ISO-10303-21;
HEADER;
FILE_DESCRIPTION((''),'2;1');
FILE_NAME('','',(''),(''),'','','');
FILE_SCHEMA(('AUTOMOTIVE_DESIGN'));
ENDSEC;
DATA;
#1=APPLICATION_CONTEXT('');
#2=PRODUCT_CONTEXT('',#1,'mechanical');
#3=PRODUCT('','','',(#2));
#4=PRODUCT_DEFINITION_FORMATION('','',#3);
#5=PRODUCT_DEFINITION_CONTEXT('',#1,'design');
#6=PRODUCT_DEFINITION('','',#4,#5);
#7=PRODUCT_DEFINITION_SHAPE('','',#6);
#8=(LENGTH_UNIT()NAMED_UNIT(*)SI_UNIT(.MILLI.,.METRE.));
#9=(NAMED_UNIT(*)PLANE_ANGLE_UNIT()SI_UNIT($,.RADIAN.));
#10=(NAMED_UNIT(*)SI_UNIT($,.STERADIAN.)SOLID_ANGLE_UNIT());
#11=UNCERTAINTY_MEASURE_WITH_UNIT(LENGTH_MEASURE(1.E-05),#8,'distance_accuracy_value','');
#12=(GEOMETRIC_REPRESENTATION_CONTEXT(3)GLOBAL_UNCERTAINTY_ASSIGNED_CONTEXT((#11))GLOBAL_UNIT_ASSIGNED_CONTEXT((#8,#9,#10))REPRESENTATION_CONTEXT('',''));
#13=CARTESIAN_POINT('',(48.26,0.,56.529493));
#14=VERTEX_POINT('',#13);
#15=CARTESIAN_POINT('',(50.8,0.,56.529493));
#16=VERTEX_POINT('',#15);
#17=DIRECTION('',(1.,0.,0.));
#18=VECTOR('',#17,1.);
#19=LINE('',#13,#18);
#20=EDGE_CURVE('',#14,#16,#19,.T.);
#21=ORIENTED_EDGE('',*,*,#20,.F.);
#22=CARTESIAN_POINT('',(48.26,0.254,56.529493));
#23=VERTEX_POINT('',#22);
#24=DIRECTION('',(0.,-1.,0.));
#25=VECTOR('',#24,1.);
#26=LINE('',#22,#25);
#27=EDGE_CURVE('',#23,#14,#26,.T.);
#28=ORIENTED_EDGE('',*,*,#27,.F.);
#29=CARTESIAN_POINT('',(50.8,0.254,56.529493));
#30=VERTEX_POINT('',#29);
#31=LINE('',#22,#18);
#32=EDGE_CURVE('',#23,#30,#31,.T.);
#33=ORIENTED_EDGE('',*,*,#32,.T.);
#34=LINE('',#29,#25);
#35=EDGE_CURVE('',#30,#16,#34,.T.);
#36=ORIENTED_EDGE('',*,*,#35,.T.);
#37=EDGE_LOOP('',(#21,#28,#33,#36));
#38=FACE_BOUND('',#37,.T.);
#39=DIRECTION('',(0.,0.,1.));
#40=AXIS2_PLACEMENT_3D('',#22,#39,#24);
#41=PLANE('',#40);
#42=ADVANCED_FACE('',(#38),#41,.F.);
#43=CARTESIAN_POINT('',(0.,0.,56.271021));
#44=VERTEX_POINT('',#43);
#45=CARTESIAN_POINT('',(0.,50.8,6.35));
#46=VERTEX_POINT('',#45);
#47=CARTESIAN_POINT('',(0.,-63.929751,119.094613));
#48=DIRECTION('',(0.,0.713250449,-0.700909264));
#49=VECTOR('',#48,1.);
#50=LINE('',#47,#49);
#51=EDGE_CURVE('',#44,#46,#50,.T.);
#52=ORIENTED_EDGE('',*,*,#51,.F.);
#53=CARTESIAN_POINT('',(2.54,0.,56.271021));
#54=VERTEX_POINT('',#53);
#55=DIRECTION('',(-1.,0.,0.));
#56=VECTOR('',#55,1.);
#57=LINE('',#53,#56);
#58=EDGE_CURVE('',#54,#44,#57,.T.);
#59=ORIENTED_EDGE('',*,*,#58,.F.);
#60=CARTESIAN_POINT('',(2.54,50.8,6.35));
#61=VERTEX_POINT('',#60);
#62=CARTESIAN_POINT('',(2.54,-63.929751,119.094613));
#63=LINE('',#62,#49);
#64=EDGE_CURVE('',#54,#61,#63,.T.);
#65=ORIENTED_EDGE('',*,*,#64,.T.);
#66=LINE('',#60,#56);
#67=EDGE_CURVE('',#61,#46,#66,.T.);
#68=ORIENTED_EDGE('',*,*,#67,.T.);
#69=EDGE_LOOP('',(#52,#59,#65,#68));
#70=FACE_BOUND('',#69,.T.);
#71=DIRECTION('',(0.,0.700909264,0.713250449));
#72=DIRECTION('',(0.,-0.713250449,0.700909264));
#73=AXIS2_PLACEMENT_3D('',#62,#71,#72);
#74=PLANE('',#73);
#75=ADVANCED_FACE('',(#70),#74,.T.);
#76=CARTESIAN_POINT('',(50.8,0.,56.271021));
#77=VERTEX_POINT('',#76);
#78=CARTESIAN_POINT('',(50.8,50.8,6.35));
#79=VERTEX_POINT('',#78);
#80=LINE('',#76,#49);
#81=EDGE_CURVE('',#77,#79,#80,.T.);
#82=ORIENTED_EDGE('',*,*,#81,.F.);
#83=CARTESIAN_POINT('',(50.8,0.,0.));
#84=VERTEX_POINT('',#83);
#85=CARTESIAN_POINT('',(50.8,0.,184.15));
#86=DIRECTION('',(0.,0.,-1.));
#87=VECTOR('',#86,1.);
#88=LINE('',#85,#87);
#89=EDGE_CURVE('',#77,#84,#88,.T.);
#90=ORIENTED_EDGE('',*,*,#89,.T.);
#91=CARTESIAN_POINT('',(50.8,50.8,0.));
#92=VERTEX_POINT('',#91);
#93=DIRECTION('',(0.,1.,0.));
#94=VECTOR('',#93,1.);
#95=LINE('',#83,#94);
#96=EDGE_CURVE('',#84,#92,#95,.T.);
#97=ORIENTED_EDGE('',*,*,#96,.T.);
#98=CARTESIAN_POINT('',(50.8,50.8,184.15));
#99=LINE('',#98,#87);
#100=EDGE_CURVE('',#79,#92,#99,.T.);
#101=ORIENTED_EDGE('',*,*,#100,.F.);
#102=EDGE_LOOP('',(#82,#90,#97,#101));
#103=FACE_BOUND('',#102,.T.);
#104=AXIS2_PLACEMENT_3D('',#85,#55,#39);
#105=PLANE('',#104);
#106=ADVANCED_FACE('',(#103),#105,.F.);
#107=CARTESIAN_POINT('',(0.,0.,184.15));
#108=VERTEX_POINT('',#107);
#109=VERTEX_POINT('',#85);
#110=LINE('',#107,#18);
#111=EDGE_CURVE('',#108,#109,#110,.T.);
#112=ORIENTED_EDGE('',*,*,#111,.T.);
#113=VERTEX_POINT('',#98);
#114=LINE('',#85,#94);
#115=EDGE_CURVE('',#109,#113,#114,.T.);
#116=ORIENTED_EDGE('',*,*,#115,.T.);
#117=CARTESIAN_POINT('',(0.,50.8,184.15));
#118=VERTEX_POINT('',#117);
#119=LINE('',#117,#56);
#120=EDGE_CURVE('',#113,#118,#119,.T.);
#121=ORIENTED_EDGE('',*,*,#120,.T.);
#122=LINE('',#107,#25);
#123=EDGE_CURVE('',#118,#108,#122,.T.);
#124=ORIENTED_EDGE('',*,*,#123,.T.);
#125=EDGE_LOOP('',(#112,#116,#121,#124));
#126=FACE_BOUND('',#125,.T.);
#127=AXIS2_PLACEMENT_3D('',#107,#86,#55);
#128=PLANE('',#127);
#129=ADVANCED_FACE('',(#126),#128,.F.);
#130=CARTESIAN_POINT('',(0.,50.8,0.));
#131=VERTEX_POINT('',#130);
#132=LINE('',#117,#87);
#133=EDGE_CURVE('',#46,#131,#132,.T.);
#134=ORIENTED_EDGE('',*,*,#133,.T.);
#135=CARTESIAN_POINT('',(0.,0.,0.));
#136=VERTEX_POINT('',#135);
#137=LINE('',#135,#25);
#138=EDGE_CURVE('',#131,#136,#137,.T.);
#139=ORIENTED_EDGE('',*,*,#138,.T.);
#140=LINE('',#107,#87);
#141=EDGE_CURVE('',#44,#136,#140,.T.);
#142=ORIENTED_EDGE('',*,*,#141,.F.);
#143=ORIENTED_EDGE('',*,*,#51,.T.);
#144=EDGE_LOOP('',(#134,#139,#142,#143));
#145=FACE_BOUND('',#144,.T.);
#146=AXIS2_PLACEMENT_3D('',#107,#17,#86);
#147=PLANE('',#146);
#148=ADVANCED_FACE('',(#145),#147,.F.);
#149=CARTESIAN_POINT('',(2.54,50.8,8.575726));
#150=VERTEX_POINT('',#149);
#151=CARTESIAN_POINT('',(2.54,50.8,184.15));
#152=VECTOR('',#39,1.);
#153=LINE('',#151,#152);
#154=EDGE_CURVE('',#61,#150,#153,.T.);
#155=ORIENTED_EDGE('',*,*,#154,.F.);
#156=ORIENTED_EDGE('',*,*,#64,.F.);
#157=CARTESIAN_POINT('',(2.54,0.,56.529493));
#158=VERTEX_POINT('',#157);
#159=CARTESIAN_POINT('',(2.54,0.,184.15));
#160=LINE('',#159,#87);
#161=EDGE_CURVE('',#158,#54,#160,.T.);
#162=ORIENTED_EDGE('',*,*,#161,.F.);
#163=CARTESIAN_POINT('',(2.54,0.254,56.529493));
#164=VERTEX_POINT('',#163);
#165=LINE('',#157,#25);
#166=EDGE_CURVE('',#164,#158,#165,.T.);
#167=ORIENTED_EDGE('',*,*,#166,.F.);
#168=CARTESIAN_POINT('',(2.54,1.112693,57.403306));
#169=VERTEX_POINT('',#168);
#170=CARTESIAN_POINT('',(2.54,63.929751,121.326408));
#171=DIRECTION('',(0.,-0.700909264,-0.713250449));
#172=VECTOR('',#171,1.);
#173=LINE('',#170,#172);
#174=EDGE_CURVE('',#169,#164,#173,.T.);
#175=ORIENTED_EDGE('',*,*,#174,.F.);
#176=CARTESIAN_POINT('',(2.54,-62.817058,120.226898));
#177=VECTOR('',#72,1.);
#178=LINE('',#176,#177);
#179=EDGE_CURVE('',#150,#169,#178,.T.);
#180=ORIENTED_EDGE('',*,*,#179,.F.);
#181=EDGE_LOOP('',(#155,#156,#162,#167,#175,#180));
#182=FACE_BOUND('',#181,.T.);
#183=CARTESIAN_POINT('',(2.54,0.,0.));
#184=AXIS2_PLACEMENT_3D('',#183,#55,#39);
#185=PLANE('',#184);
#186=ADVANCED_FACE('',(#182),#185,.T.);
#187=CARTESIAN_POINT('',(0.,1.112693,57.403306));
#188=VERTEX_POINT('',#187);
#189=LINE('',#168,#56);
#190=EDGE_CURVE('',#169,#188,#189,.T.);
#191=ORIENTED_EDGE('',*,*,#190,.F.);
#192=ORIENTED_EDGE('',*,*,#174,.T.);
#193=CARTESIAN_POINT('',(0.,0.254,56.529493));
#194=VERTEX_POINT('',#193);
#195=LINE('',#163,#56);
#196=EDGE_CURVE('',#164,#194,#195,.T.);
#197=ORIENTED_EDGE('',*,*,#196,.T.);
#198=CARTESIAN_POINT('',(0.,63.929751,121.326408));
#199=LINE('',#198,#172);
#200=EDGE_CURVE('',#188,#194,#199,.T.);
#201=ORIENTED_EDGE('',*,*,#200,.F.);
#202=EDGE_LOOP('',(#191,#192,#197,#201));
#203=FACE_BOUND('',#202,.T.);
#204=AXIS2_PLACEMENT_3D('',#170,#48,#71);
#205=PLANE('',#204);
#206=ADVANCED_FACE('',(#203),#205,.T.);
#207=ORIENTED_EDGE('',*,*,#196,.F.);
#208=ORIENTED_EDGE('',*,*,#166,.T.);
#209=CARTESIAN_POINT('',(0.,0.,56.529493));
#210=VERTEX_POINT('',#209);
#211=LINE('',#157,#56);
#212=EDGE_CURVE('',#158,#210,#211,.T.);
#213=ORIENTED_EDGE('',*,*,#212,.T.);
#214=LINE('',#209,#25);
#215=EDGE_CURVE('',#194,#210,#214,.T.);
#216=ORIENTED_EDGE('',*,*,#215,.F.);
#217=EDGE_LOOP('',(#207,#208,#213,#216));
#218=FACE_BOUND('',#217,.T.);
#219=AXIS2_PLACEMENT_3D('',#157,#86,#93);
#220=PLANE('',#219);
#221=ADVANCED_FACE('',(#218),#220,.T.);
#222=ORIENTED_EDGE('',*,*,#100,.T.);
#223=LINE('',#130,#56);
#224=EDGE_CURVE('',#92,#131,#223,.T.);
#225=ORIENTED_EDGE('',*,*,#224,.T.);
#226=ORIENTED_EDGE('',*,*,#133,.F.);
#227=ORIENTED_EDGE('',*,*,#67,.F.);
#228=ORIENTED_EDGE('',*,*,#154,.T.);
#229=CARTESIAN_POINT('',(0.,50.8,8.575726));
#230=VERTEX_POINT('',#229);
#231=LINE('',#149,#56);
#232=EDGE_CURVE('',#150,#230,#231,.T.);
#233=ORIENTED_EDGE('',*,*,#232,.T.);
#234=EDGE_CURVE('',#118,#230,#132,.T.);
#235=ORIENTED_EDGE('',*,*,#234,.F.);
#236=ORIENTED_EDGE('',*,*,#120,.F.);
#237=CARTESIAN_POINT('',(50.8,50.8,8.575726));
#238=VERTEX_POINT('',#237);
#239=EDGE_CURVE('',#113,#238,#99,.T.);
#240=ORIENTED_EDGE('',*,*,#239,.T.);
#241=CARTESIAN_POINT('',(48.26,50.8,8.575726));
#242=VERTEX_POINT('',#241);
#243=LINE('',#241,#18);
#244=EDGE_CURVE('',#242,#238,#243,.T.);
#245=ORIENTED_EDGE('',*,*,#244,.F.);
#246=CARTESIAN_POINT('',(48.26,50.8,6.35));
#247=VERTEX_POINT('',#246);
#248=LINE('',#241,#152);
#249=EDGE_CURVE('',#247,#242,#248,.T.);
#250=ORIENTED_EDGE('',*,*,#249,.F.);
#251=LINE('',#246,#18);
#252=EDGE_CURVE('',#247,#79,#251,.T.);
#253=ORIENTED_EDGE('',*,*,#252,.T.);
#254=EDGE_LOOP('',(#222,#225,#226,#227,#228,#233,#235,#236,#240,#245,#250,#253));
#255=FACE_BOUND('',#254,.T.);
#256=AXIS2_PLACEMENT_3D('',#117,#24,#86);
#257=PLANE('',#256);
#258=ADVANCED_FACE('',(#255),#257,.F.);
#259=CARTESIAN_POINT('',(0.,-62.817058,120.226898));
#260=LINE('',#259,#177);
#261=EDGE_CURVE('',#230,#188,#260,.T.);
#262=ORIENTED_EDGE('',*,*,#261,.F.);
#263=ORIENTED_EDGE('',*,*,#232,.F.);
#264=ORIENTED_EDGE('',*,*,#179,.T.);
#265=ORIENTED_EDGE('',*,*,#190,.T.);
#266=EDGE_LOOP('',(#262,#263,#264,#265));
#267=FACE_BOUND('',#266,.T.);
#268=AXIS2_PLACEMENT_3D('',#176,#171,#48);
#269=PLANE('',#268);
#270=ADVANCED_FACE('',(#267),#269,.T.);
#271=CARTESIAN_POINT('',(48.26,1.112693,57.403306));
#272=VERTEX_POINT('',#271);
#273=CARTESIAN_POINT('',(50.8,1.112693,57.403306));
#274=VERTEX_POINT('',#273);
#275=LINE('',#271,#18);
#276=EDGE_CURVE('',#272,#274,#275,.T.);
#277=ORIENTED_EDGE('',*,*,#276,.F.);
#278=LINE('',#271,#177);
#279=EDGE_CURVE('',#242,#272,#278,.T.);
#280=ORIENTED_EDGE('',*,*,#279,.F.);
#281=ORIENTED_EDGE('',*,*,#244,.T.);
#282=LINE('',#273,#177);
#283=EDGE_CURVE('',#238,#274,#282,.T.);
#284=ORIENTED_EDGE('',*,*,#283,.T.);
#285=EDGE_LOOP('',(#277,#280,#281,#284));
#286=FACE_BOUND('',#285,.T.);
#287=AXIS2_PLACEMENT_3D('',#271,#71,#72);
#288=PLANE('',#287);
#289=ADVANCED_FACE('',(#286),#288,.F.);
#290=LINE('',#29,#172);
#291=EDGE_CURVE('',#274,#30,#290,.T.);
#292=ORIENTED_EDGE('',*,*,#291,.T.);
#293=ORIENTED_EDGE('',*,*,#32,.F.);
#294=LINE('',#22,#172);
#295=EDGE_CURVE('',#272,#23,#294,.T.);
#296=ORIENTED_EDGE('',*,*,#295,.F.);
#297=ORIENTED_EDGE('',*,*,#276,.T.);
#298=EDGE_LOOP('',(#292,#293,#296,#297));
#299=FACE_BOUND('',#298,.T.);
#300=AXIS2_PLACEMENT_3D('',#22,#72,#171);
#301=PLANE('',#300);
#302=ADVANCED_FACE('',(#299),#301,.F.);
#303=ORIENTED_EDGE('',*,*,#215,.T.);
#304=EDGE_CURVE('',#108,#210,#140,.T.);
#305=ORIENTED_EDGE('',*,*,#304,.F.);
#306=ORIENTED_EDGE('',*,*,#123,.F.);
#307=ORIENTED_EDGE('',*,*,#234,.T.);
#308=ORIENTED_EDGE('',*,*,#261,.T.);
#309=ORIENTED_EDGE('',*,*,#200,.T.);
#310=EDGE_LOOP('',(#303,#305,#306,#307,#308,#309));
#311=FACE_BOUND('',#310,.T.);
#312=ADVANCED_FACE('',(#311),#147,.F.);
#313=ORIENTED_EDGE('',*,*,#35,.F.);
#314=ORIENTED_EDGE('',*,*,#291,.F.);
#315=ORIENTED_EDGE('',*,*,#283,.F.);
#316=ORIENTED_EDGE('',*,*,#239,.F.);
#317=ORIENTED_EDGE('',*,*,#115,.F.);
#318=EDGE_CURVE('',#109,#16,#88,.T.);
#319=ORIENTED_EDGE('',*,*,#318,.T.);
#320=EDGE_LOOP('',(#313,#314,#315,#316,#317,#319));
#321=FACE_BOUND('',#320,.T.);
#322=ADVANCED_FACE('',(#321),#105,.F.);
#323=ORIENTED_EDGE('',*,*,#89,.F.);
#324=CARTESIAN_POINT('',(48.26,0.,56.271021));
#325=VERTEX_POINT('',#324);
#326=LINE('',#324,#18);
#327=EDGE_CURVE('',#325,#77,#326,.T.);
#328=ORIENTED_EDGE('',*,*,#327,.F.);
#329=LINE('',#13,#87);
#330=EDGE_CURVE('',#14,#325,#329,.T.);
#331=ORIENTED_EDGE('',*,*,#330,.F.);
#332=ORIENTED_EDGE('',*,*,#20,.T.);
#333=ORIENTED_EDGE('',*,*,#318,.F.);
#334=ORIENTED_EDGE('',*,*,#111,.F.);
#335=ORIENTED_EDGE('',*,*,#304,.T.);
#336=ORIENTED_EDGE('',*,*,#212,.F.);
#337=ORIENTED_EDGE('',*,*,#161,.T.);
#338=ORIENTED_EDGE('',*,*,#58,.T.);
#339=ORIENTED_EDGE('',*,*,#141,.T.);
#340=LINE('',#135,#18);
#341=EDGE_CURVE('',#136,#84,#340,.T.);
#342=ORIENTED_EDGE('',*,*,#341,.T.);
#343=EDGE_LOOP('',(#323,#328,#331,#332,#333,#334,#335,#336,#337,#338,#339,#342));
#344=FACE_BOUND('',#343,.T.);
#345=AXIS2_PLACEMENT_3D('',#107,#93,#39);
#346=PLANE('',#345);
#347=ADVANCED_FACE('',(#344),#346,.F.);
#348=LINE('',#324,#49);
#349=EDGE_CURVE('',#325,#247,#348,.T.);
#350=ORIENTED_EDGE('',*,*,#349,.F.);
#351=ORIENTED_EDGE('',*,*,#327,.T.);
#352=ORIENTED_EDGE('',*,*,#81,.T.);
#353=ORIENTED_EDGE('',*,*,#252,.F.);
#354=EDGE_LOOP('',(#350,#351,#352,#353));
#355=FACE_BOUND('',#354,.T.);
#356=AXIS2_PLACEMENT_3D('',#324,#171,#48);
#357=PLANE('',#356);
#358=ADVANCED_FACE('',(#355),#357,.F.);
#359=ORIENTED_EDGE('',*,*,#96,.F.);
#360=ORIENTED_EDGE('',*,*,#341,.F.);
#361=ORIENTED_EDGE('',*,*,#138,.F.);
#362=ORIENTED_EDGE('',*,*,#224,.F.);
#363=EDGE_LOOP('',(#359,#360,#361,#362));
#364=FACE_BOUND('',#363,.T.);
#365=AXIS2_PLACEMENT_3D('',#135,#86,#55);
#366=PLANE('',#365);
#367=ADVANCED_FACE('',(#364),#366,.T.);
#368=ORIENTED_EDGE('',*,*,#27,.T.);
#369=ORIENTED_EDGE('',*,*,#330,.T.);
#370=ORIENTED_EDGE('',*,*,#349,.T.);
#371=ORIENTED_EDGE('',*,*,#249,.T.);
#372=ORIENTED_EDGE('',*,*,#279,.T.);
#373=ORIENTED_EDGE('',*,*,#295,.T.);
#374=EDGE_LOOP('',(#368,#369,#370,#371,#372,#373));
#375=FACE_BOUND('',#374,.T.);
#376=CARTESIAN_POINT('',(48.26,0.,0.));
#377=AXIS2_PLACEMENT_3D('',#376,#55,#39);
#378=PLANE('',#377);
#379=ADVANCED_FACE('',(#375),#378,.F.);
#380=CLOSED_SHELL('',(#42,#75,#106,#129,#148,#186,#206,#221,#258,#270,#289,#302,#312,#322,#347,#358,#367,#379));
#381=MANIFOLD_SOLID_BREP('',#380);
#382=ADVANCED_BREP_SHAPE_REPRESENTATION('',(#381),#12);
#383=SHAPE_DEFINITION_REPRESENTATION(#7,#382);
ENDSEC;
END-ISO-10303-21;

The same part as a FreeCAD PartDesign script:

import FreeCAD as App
import Part
import Sketcher
from FreeCAD import Vector
Q = App.Units.Quantity

doc = App.newDocument("Part")
body = doc.addObject("PartDesign::Body", "Body")

# Sketch on XY plane
sketch1 = body.newObject("Sketcher::SketchObject", "Sketch")
sketch1.AttachmentSupport = (doc.getObject("XY_Plane"), [""])
sketch1.MapMode = "FlatFace"
sketch1.addGeometry([
    Part.LineSegment(Vector(0, 51, 0), Vector(0, 0, 0)),
    Part.LineSegment(Vector(0, 0, 0), Vector(51, 0, 0)),
    Part.LineSegment(Vector(51, 0, 0), Vector(51, 51, 0)),
    Part.LineSegment(Vector(51, 51, 0), Vector(0, 51, 0)),
], False)
sketch1.addConstraint([
    Sketcher.Constraint("Coincident", 0, 2, 1, 1),
    Sketcher.Constraint("Coincident", 1, 2, 2, 1),
    Sketcher.Constraint("Coincident", 2, 2, 3, 1),
    Sketcher.Constraint("Coincident", 3, 2, 0, 1),
    Sketcher.Constraint("Vertical", 0),
    Sketcher.Constraint("Horizontal", 1),
    Sketcher.Constraint("Vertical", 2),
    Sketcher.Constraint("Horizontal", 3),
    Sketcher.Constraint("Coincident", 0, 2, -1, 1),
    Sketcher.Constraint("Equal", 3, 0),
    Sketcher.Constraint("DistanceX", 1, 1, 1, 2, Q("2 in")),
])
pad1 = body.newObject("PartDesign::Pad", "Pad")
pad1.Profile = sketch1
pad1.Length = Q("7.25 in")

# Sketch on YZ plane
sketch2 = body.newObject("Sketcher::SketchObject", "Sketch001")
sketch2.AttachmentSupport = (doc.getObject("YZ_Plane"), [""])
sketch2.MapMode = "FlatFace"
sketch2.AttachmentOffset = App.Placement(Vector(0, 0, 2 * 25.4), App.Rotation())
sketch2.addGeometry([
    Part.LineSegment(Vector(0, 56.27, 0), Vector(50.8, 6.35, 0)),  # 0
    Part.LineSegment(Vector(50.8, 6.35, 0), Vector(50.8, 8.58, 0)),  # 1
    Part.LineSegment(Vector(50.8, 8.58, 0), Vector(1.11, 57.4, 0)),  # 2
    Part.LineSegment(Vector(1.11, 57.4, 0), Vector(0.25, 56.53, 0)),  # 3
    Part.LineSegment(Vector(0.25, 56.53, 0), Vector(0, 56.53, 0)),  # 4
    Part.LineSegment(Vector(0, 56.53, 0), Vector(0, 56.27, 0)),  # 5
], False)
sketch2.addConstraint([
    Sketcher.Constraint("Coincident", 0, 2, 1, 1),
    Sketcher.Constraint("Coincident", 1, 2, 2, 1),
    Sketcher.Constraint("Coincident", 2, 2, 3, 1),
    Sketcher.Constraint("Coincident", 3, 2, 4, 1),
    Sketcher.Constraint("Coincident", 4, 2, 5, 1),
    Sketcher.Constraint("Coincident", 5, 2, 0, 1),
    Sketcher.Constraint("Vertical", 1),
    Sketcher.Constraint("Horizontal", 4),
    Sketcher.Constraint("Vertical", 5),
    Sketcher.Constraint("PointOnObject", 4, 2, -2),
    Sketcher.Constraint("Parallel", 0, 2),
    Sketcher.Constraint("Perpendicular", 2, 3),
    Sketcher.Constraint("DistanceX", -1, 1, 0, 2, Q("2 in")),
    Sketcher.Constraint("DistanceX", 4, 2, 4, 1, Q("0.01 in")),
    Sketcher.Constraint("Angle", 0, Q("-44.5 deg")),
    Sketcher.Constraint("DistanceY", -1, 1, 0, 2, Q("0.25 in")),
    Sketcher.Constraint("DistanceY", 1, 1, 1, 2, 2.225726),
    Sketcher.Constraint("DistanceY", 5, 2, 5, 1, 0.258472),
])
pocket1 = body.newObject("PartDesign::Pocket", "Pocket")
pocket1.Profile = sketch2
pocket1.Length = Q("0.1 in")

# Sketch on YZ plane
sketch3 = body.newObject("Sketcher::SketchObject", "Sketch002")
sketch3.AttachmentSupport = (doc.getObject("YZ_Plane"), [""])
sketch3.MapMode = "FlatFace"
sketch3.addGeometry([
    Part.LineSegment(Vector(0, 56.27, 0), Vector(50.8, 6.35, 0)),  # 0
    Part.LineSegment(Vector(50.8, 6.35, 0), Vector(50.8, 8.58, 0)),  # 1
    Part.LineSegment(Vector(50.8, 8.58, 0), Vector(1.11, 57.4, 0)),  # 2
    Part.LineSegment(Vector(1.11, 57.4, 0), Vector(0.25, 56.53, 0)),  # 3
    Part.LineSegment(Vector(0.25, 56.53, 0), Vector(0, 56.53, 0)),  # 4
    Part.LineSegment(Vector(0, 56.53, 0), Vector(0, 56.27, 0)),  # 5
], False)
sketch3.addConstraint([
    Sketcher.Constraint("Coincident", 0, 2, 1, 1),
    Sketcher.Constraint("Coincident", 1, 2, 2, 1),
    Sketcher.Constraint("Coincident", 2, 2, 3, 1),
    Sketcher.Constraint("Coincident", 3, 2, 4, 1),
    Sketcher.Constraint("Coincident", 4, 2, 5, 1),
    Sketcher.Constraint("Coincident", 5, 2, 0, 1),
    Sketcher.Constraint("Vertical", 1),
    Sketcher.Constraint("Horizontal", 4),
    Sketcher.Constraint("Vertical", 5),
    Sketcher.Constraint("PointOnObject", 4, 2, -2),
    Sketcher.Constraint("Parallel", 0, 2),
    Sketcher.Constraint("Perpendicular", 2, 3),
    Sketcher.Constraint("DistanceX", -1, 1, 0, 2, Q("2 in")),
    Sketcher.Constraint("DistanceX", 4, 2, 4, 1, Q("0.01 in")),
    Sketcher.Constraint("Angle", 0, Q("-44.5 deg")),
    Sketcher.Constraint("DistanceY", -1, 1, 0, 2, Q("0.25 in")),
    Sketcher.Constraint("DistanceY", 1, 1, 1, 2, 2.225726),
    Sketcher.Constraint("DistanceY", 5, 2, 5, 1, 0.258472),
])
pocket2 = body.newObject("PartDesign::Pocket", "Pocket001")
pocket2.Profile = sketch3
pocket2.Length = Q("0.1 in")
pocket2.Reversed = True

doc.recompute()
